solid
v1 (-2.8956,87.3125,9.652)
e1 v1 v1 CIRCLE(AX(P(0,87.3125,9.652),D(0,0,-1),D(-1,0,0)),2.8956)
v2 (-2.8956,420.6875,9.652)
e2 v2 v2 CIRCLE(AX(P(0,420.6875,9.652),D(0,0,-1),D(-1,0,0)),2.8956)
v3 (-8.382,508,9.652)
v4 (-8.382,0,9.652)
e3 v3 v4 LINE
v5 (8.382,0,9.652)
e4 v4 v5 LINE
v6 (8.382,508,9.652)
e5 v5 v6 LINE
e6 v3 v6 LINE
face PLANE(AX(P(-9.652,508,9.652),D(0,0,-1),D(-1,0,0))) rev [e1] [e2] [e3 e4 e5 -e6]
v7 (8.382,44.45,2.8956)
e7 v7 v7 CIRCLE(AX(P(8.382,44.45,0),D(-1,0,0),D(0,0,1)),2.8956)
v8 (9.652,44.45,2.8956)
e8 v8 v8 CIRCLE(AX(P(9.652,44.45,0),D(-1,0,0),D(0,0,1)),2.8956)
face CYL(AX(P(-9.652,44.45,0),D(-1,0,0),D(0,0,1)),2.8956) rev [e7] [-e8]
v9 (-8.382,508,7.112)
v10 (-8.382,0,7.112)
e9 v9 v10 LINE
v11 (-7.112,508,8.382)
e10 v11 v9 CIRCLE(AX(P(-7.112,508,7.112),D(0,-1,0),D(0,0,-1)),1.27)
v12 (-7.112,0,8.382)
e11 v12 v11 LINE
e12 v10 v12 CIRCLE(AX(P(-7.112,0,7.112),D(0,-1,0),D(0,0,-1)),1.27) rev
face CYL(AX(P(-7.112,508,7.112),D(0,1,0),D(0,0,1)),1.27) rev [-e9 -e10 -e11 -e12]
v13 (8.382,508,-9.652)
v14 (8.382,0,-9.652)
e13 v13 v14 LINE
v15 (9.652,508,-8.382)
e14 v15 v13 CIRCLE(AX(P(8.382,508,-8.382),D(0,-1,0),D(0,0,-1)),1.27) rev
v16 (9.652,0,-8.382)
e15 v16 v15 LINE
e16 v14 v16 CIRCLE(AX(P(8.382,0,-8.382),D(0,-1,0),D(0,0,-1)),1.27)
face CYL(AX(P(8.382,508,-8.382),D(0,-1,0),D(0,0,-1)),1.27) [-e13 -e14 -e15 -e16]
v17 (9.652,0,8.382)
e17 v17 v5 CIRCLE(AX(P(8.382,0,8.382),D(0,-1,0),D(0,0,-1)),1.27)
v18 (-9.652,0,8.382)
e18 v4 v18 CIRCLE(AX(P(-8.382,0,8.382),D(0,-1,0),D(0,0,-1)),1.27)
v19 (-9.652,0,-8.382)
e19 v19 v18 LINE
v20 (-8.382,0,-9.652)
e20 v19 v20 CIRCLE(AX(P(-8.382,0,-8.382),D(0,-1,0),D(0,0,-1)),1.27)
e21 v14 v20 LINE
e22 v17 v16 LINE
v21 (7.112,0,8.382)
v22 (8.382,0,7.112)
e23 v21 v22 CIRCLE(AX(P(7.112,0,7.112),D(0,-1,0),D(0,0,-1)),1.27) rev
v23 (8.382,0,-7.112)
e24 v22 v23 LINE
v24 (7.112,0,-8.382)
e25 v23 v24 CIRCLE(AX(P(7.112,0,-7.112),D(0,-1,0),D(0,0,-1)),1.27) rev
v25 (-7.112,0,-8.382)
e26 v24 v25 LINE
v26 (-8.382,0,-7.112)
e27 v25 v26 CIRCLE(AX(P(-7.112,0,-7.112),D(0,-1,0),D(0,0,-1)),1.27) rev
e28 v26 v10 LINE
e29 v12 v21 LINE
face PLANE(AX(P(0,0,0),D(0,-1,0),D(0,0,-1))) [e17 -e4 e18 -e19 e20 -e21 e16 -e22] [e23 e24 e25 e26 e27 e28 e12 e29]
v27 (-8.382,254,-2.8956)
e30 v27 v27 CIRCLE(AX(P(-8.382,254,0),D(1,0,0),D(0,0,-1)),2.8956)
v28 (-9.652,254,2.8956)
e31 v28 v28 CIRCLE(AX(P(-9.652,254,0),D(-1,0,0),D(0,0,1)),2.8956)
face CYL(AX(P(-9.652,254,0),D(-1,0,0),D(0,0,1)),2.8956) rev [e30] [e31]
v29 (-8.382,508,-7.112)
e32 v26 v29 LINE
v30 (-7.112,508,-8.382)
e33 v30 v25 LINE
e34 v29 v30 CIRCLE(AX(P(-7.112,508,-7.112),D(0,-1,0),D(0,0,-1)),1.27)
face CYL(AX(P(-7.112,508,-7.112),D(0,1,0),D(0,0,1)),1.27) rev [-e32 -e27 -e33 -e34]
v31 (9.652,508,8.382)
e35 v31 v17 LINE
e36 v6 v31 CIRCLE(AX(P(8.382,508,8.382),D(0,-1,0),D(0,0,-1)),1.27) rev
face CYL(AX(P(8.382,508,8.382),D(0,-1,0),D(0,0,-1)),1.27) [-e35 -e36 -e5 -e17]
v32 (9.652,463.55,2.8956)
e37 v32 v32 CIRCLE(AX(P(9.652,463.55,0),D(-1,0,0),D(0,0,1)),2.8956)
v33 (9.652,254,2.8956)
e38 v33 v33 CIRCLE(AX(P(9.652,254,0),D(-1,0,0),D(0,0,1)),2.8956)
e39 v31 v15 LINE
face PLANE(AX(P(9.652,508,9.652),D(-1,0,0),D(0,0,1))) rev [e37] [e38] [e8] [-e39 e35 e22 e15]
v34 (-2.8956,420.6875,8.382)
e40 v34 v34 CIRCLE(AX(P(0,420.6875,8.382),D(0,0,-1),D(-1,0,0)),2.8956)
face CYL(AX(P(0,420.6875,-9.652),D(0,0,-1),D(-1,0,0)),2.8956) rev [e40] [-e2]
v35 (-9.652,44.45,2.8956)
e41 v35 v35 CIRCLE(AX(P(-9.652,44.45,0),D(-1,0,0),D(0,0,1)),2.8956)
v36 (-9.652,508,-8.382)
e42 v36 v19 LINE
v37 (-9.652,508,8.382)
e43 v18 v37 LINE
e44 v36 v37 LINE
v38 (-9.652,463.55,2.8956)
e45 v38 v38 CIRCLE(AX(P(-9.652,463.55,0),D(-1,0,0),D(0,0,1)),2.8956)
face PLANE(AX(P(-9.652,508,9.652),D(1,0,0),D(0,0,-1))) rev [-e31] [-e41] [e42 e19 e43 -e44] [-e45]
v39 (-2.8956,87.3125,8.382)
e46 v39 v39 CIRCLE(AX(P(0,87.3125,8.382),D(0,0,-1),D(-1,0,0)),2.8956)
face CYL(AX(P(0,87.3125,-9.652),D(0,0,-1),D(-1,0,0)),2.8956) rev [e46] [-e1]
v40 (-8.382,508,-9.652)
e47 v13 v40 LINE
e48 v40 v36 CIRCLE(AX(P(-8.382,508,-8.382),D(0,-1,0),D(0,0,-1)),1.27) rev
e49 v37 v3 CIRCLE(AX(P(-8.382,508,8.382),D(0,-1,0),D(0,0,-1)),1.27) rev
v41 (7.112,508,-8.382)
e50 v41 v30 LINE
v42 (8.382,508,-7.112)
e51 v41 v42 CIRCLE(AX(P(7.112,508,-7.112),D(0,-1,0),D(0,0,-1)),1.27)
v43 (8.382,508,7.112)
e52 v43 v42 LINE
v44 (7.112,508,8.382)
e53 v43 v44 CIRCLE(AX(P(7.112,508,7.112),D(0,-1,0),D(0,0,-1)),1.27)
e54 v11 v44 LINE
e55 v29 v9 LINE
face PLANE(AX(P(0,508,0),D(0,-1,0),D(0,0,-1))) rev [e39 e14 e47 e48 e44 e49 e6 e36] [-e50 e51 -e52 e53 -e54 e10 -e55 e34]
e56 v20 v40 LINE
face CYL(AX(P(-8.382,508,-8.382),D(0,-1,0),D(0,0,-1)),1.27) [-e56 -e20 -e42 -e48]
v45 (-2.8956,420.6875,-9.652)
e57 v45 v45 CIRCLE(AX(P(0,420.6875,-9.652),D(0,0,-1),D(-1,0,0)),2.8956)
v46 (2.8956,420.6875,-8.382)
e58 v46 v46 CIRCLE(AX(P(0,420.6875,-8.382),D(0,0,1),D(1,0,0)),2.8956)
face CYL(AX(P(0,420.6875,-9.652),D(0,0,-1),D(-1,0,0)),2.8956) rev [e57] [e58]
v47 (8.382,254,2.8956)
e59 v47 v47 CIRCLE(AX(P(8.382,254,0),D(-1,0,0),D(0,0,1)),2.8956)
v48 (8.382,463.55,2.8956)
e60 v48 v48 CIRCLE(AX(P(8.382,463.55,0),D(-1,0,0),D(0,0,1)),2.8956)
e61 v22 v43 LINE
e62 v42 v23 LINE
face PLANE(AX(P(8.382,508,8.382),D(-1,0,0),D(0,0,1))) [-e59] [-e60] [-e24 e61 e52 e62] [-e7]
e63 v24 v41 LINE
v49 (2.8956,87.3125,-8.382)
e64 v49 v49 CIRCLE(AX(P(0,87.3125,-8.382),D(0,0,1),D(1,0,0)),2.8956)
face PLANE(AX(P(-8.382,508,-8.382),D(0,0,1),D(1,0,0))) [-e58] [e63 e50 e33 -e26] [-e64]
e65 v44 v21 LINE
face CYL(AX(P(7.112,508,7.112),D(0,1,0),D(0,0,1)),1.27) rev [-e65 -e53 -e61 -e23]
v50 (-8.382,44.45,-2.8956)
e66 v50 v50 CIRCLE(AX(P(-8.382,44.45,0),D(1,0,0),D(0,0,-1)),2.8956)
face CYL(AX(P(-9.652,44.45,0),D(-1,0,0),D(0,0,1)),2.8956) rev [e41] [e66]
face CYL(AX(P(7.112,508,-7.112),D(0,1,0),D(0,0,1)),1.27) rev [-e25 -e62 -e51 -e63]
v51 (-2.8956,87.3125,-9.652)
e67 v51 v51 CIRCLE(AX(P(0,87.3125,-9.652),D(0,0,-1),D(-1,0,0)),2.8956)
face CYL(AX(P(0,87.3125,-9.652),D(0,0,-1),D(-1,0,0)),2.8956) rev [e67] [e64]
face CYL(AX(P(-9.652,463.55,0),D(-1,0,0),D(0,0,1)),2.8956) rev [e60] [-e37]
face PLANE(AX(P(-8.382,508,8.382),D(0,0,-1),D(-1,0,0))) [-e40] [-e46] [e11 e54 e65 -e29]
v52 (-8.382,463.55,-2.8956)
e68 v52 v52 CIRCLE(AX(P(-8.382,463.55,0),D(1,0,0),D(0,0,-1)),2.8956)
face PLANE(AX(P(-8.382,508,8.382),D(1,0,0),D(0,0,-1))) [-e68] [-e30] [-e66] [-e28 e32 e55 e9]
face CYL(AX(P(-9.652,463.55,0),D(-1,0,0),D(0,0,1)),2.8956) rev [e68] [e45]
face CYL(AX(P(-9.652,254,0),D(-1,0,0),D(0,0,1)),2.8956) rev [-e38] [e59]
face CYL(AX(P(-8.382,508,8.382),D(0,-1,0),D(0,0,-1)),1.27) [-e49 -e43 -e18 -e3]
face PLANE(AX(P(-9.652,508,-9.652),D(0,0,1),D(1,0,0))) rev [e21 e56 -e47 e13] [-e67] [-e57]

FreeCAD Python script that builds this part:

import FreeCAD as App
import Part
import Sketcher
Q = App.Units.Quantity


def edges_at(feature, points):
    """Names of the edges that pass closest to the given points."""
    edges = feature.Shape.Edges
    near = lambda p: min(range(len(edges)), key=lambda i: edges[i].distToShape(Part.Vertex(*p))[0])
    return sorted({f"Edge{near(p) + 1}" for p in points})

doc = App.newDocument("Part")
body = doc.addObject("PartDesign::Body", "Body")

sketch1 = body.newObject("Sketcher::SketchObject", "Sketch")
sketch1.AttachmentSupport = (doc.getObject("XZ_Plane"), [""])
sketch1.MapMode = "FlatFace"
sketch1.addGeometry([
    Part.LineSegment(App.Vector(-10, -10, 0), App.Vector(-10, 10, 0)),
    Part.LineSegment(App.Vector(-10, 10, 0), App.Vector(10, 10, 0)),
    Part.LineSegment(App.Vector(10, 10, 0), App.Vector(10, -10, 0)),
    Part.LineSegment(App.Vector(10, -10, 0), App.Vector(-10, -10, 0)),
    Part.LineSegment(App.Vector(8, 8, 0), App.Vector(-8, 8, 0)),
    Part.LineSegment(App.Vector(-8, 8, 0), App.Vector(-8, -8, 0)),
    Part.LineSegment(App.Vector(-8, -8, 0), App.Vector(8, -8, 0)),
    Part.LineSegment(App.Vector(8, -8, 0), App.Vector(8, 8, 0)),
], False)
sketch1.addConstraint([
    Sketcher.Constraint("Coincident", 0, 2, 1, 1),
    Sketcher.Constraint("Coincident", 1, 2, 2, 1),
    Sketcher.Constraint("Coincident", 2, 2, 3, 1),
    Sketcher.Constraint("Coincident", 3, 2, 0, 1),
    Sketcher.Constraint("Coincident", 4, 2, 5, 1),
    Sketcher.Constraint("Coincident", 5, 2, 6, 1),
    Sketcher.Constraint("Coincident", 6, 2, 7, 1),
    Sketcher.Constraint("Coincident", 7, 2, 4, 1),
    Sketcher.Constraint("Vertical", 0),
    Sketcher.Constraint("Horizontal", 1),
    Sketcher.Constraint("Vertical", 2),
    Sketcher.Constraint("Horizontal", 3),
    Sketcher.Constraint("Horizontal", 4),
    Sketcher.Constraint("Vertical", 5),
    Sketcher.Constraint("Horizontal", 6),
    Sketcher.Constraint("Vertical", 7),
    Sketcher.Constraint("Symmetric", 0, 2, 2, 2, -1, 1),
    Sketcher.Constraint("Symmetric", 4, 2, 6, 2, -1, 1),
    Sketcher.Constraint("Equal", 3, 0),
    Sketcher.Constraint("Equal", 6, 5),
    Sketcher.Constraint("DistanceX", 1, 1, 1, 2, Q("0.76 in")),
    Sketcher.Constraint("DistanceX", 4, 2, 4, 1, Q("0.66 in")),
])
pad1 = body.newObject("PartDesign::Pad", "Pad")
pad1.Profile = sketch1
pad1.Length = Q("20 in")
pad1.Reversed = True
doc.recompute()

fillet = body.newObject("PartDesign::Fillet", "Fillet")
fillet.Base = (pad1, edges_at(pad1, [
    (-8.382, 254, 8.382),
    (8.382, 254, 8.382),
    (8.382, 254, -8.382),
    (-8.382, 254, -8.382),
    (9.652, 254, 9.652),
    (-9.652, 254, 9.652),
    (-9.652, 254, -9.652),
    (9.652, 254, -9.652),
]))
fillet.Radius = Q("0.05 in")

sketch2 = body.newObject("Sketcher::SketchObject", "Sketch001")
sketch2.AttachmentSupport = (doc.getObject("YZ_Plane"), [""])
sketch2.MapMode = "FlatFace"
sketch2.AttachmentOffset = App.Placement(App.Vector(0, 0, -0.38 * 25.4), App.Rotation())
sketch2.addGeometry([
    Part.Circle(App.Vector(463.6, 0, 0), App.Vector(0, 0, 1), 2.9),
    Part.Circle(App.Vector(44.5, 0, 0), App.Vector(0, 0, 1), 2.9),
    Part.Circle(App.Vector(254, 0, 0), App.Vector(0, 0, 1), 2.9),
], False)
sketch2.addConstraint([
    Sketcher.Constraint("Equal", 0, 1),
    Sketcher.Constraint("Equal", 1, 2),
    Sketcher.Constraint("PointOnObject", 0, 3, -1),
    Sketcher.Constraint("PointOnObject", 1, 3, -1),
    Sketcher.Constraint("PointOnObject", 2, 3, -1),
    Sketcher.Constraint("Diameter", 0, Q("0.228 in")),
    Sketcher.Constraint("DistanceX", -1, 1, 2, 3, Q("10 in")),
    Sketcher.Constraint("DistanceX", 1, 3, 0, 3, Q("16.5 in")),
    Sketcher.Constraint("DistanceX", -1, 1, 0, 3, Q("18.25 in")),
])
doc.recompute()
hole = body.newObject("PartDesign::Hole", "Hole")
hole.Profile = sketch2
hole.ThreadType = "None"
hole.Diameter = Q("0.228 in")
hole.DepthType = "ThroughAll"
hole.Reversed = True

sketch3 = body.newObject("Sketcher::SketchObject", "Sketch002")
sketch3.AttachmentSupport = (doc.getObject("XY_Plane"), [""])
sketch3.MapMode = "FlatFace"
sketch3.AttachmentOffset = App.Placement(App.Vector(0, 0, -0.38 * 25.4), App.Rotation())
sketch3.addGeometry([
    Part.Circle(App.Vector(0, 420.7, 0), App.Vector(0, 0, 1), 2.9),
    Part.Circle(App.Vector(0, 87.3, 0), App.Vector(0, 0, 1), 2.9),
], False)
sketch3.addConstraint([
    Sketcher.Constraint("Equal", 0, 1),
    Sketcher.Constraint("PointOnObject", 0, 3, -2),
    Sketcher.Constraint("PointOnObject", 1, 3, -2),
    Sketcher.Constraint("Diameter", 0, Q("0.228 in")),
    Sketcher.Constraint("DistanceY", -1, 1, 0, 3, Q("16.5625 in")),
    Sketcher.Constraint("DistanceY", -1, 1, 1, 3, Q("3.4375 in")),
])
doc.recompute()
hole2 = body.newObject("PartDesign::Hole", "Hole001")
hole2.Profile = sketch3
hole2.ThreadType = "None"
hole2.Diameter = Q("0.228 in")
hole2.DepthType = "ThroughAll"
hole2.Reversed = True

doc.recompute()
